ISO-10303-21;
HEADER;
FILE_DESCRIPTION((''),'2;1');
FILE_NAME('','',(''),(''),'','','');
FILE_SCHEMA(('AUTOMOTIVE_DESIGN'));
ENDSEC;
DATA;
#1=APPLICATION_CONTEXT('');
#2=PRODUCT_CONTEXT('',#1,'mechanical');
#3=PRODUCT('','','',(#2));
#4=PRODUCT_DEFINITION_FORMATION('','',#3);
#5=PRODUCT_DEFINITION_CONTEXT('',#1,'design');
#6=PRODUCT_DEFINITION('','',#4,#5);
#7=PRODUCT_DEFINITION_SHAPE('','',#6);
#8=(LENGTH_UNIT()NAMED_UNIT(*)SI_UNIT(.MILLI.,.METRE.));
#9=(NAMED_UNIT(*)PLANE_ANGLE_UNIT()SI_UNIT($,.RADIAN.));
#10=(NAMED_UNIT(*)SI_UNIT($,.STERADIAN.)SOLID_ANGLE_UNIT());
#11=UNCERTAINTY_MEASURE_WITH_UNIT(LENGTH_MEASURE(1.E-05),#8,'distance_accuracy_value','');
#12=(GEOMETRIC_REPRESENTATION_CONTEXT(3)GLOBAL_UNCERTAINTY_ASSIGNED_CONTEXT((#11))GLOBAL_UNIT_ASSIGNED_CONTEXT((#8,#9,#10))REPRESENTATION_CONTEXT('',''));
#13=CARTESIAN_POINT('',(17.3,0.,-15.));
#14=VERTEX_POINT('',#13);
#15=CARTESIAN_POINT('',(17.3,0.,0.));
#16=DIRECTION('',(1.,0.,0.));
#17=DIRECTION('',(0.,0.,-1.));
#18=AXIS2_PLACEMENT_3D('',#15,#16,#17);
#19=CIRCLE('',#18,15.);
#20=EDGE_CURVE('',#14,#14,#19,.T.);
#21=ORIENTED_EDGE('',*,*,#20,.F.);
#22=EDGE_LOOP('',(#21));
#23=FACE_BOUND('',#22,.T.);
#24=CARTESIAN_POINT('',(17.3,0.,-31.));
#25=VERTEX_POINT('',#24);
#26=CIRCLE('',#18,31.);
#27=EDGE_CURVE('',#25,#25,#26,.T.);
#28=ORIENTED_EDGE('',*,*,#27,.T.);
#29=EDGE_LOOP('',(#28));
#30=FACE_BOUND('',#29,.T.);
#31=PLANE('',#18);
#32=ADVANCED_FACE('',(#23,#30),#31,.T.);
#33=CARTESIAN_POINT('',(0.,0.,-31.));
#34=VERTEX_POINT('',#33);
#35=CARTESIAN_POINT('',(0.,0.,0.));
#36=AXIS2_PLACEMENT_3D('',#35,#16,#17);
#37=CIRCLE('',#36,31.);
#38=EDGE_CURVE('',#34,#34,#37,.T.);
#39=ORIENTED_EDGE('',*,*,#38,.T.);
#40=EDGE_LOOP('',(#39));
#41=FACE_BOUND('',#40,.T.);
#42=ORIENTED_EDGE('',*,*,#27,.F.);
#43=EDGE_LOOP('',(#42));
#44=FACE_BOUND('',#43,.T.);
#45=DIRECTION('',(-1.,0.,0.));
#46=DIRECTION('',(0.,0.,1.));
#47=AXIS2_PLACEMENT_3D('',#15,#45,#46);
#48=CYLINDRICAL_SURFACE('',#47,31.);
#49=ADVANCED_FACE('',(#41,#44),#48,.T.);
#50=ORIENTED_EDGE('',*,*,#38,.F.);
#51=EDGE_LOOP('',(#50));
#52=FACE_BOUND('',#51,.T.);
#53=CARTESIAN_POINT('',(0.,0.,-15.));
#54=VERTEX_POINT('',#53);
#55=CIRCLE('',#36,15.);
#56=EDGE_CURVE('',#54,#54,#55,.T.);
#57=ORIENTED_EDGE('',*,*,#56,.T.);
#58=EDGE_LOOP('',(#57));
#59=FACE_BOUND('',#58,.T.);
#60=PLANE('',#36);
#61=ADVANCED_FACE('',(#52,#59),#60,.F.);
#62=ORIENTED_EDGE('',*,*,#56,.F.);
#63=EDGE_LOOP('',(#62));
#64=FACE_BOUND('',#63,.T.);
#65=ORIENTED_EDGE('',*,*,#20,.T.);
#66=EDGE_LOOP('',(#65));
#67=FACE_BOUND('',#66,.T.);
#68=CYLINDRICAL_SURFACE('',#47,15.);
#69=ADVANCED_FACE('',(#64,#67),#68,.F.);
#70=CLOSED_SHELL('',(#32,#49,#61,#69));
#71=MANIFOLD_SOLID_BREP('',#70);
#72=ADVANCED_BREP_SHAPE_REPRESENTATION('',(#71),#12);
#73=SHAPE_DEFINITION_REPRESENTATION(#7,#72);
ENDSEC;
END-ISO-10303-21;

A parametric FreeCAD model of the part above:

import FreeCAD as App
import Part
import Sketcher
from FreeCAD import Vector
Q = App.Units.Quantity

doc = App.newDocument("Part")
body = doc.addObject("PartDesign::Body", "Body")

sketch1 = body.newObject("Sketcher::SketchObject", "Sketch")
sketch1.AttachmentSupport = (doc.getObject("YZ_Plane"), [""])
sketch1.MapMode = "FlatFace"
sketch1.addGeometry([
    Part.Circle(Vector(0, 0, 0), Vector(0, 0, 1), 31),
    Part.Circle(Vector(0, 0, 0), Vector(0, 0, 1), 15),
], False)
sketch1.addConstraint([
    Sketcher.Constraint("Coincident", 0, 3, -1, 1),
    Sketcher.Constraint("Coincident", 1, 3, -1, 1),
    Sketcher.Constraint("Diameter", 0, Q("62 mm")),
    Sketcher.Constraint("Diameter", 1, Q("30 mm")),
])
pad1 = body.newObject("PartDesign::Pad", "Pad")
pad1.Profile = sketch1
pad1.Length = 17.3

doc.recompute()
